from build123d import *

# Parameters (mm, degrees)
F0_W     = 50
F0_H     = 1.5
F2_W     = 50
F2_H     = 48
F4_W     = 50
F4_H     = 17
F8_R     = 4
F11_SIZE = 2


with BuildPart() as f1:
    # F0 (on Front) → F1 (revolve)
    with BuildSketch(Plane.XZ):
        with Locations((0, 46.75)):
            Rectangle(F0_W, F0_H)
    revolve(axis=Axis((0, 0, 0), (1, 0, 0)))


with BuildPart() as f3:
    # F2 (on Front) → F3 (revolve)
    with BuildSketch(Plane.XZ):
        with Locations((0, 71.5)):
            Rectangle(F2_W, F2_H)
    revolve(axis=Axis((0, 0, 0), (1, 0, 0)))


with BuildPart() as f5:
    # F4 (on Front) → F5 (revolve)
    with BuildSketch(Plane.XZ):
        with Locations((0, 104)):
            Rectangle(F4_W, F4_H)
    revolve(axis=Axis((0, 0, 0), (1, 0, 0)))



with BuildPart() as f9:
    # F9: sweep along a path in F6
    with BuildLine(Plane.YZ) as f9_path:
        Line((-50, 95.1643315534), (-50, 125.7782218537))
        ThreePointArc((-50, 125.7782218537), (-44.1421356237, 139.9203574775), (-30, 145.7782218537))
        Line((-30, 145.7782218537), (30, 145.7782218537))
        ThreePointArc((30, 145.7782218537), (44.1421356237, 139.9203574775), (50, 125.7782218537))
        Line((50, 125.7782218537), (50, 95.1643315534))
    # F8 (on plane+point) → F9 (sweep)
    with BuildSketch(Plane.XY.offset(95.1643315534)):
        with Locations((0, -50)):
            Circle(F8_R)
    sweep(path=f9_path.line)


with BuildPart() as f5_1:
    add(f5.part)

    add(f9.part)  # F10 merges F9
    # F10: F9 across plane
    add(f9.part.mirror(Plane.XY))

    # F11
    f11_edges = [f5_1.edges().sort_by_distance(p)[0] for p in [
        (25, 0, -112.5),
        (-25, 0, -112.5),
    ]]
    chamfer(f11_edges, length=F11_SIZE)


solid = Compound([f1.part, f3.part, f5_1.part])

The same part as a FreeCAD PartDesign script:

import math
import FreeCAD as App
import Part
import Sketcher
Q = App.Units.Quantity


def edges_at(feature, points):
    """Names of the edges that pass closest to the given points."""
    edges = feature.Shape.Edges
    near = lambda p: min(range(len(edges)), key=lambda i: edges[i].distToShape(Part.Vertex(*p))[0])
    return sorted({f"Edge{near(p) + 1}" for p in points})

doc = App.newDocument("Part")
params = doc.addObject("Spreadsheet::Sheet", "Params")
for row, (alias, value) in enumerate([
    ("sketch1_width", "50 mm"),
    ("sketch1_height", "1.5 mm"),
    ("revolution_angle", "360 deg"),
    ("sketch2_width", "50 mm"),
    ("sketch2_height", "48 mm"),
    ("revolution2_angle", "360 deg"),
    ("sketch3_width", "50 mm"),
    ("sketch3_height", "17 mm"),
    ("revolution3_angle", "360 deg"),
    ("sketch4_diameter", "8 mm"),
    ("sketch5_radius", "20 mm"),
    ("sketch5_width", "60 mm"),
    ("chamfer_size", "2 mm"),
], start=1):
    params.set(f"A{row}", alias)
    params.set(f"B{row}", "=" + value)
    params.setAlias(f"B{row}", alias)

body = doc.addObject("PartDesign::Body", "Body")

# Sketch on XZ plane
sketch1 = body.newObject("Sketcher::SketchObject", "Sketch")
sketch1.AttachmentSupport = (doc.getObject("XZ_Plane"), [""])
sketch1.MapMode = "FlatFace"
sketch1.addGeometry(Part.LineSegment(App.Vector(-25, 47.5, 0), App.Vector(-25, 46, 0)), False)
sketch1.addGeometry(Part.LineSegment(App.Vector(-25, 46, 0), App.Vector(25, 46, 0)), False)
sketch1.addGeometry(Part.LineSegment(App.Vector(25, 46, 0), App.Vector(25, 47.5, 0)), False)
sketch1.addGeometry(Part.LineSegment(App.Vector(25, 47.5, 0), App.Vector(-25, 47.5, 0)), False)
sketch1.addConstraint(Sketcher.Constraint("Coincident", 0, 2, 1, 1))
sketch1.addConstraint(Sketcher.Constraint("Coincident", 1, 2, 2, 1))
sketch1.addConstraint(Sketcher.Constraint("Coincident", 2, 2, 3, 1))
sketch1.addConstraint(Sketcher.Constraint("Coincident", 3, 2, 0, 1))
sketch1.addConstraint(Sketcher.Constraint("Vertical", 0))
sketch1.addConstraint(Sketcher.Constraint("Horizontal", 1))
sketch1.addConstraint(Sketcher.Constraint("Vertical", 2))
sketch1.addConstraint(Sketcher.Constraint("Horizontal", 3))
sketch1.addConstraint(Sketcher.Constraint("DistanceX", 1, 1, 1, 2, Q("50 mm")))
sketch1.addConstraint(Sketcher.Constraint("DistanceY", 0, 2, 0, 1, Q("1.5 mm")))
sketch1.addConstraint(Sketcher.Constraint("DistanceX", 0, 2, -1, 1, Q("25 mm")))
sketch1.addConstraint(Sketcher.Constraint("DistanceY", -1, 1, 0, 2, Q("46 mm")))
sketch1.setExpression("Constraints[8]", "Params.sketch1_width")
sketch1.setExpression("Constraints[9]", "Params.sketch1_height")
revolution = body.newObject("PartDesign::Revolution", "Revolution")
revolution.Profile = sketch1
revolution.ReferenceAxis = (sketch1, ["H_Axis"])
revolution.setExpression("Angle", "Params.revolution_angle")
body2 = doc.addObject("PartDesign::Body", "Body001")

# Sketch on XZ plane
sketch2 = body2.newObject("Sketcher::SketchObject", "Sketch001")
sketch2.AttachmentSupport = (doc.getObject("XZ_Plane001"), [""])
sketch2.MapMode = "FlatFace"
sketch2.addGeometry(Part.LineSegment(App.Vector(-25, 96, 0), App.Vector(-25, 48, 0)), False)
sketch2.addGeometry(Part.LineSegment(App.Vector(-25, 48, 0), App.Vector(25, 48, 0)), False)
sketch2.addGeometry(Part.LineSegment(App.Vector(25, 48, 0), App.Vector(25, 96, 0)), False)
sketch2.addGeometry(Part.LineSegment(App.Vector(25, 96, 0), App.Vector(-25, 96, 0)), False)
sketch2.addConstraint(Sketcher.Constraint("Coincident", 0, 2, 1, 1))
sketch2.addConstraint(Sketcher.Constraint("Coincident", 1, 2, 2, 1))
sketch2.addConstraint(Sketcher.Constraint("Coincident", 2, 2, 3, 1))
sketch2.addConstraint(Sketcher.Constraint("Coincident", 3, 2, 0, 1))
sketch2.addConstraint(Sketcher.Constraint("Vertical", 0))
sketch2.addConstraint(Sketcher.Constraint("Horizontal", 1))
sketch2.addConstraint(Sketcher.Constraint("Vertical", 2))
sketch2.addConstraint(Sketcher.Constraint("Horizontal", 3))
sketch2.addConstraint(Sketcher.Constraint("DistanceX", 1, 1, 1, 2, Q("50 mm")))
sketch2.addConstraint(Sketcher.Constraint("DistanceY", 0, 2, 0, 1, Q("48 mm")))
sketch2.addConstraint(Sketcher.Constraint("DistanceX", 0, 2, -1, 1, Q("25 mm")))
sketch2.addConstraint(Sketcher.Constraint("DistanceY", -1, 1, 0, 2, Q("47.5 mm")))
sketch2.setExpression("Constraints[8]", "Params.sketch2_width")
sketch2.setExpression("Constraints[9]", "Params.sketch2_height")
revolution2 = body2.newObject("PartDesign::Revolution", "Revolution001")
revolution2.Profile = sketch2
revolution2.ReferenceAxis = (sketch2, ["H_Axis"])
revolution2.setExpression("Angle", "Params.revolution2_angle")
body3 = doc.addObject("PartDesign::Body", "Body002")

# Sketch on XZ plane
sketch3 = body3.newObject("Sketcher::SketchObject", "Sketch002")
sketch3.AttachmentSupport = (doc.getObject("XZ_Plane002"), [""])
sketch3.MapMode = "FlatFace"
sketch3.addGeometry(Part.LineSegment(App.Vector(-25, 112, 0), App.Vector(-25, 96, 0)), False)
sketch3.addGeometry(Part.LineSegment(App.Vector(-25, 96, 0), App.Vector(25, 96, 0)), False)
sketch3.addGeometry(Part.LineSegment(App.Vector(25, 96, 0), App.Vector(25, 112, 0)), False)
sketch3.addGeometry(Part.LineSegment(App.Vector(25, 112, 0), App.Vector(-25, 112, 0)), False)
sketch3.addConstraint(Sketcher.Constraint("Coincident", 0, 2, 1, 1))
sketch3.addConstraint(Sketcher.Constraint("Coincident", 1, 2, 2, 1))
sketch3.addConstraint(Sketcher.Constraint("Coincident", 2, 2, 3, 1))
sketch3.addConstraint(Sketcher.Constraint("Coincident", 3, 2, 0, 1))
sketch3.addConstraint(Sketcher.Constraint("Vertical", 0))
sketch3.addConstraint(Sketcher.Constraint("Horizontal", 1))
sketch3.addConstraint(Sketcher.Constraint("Vertical", 2))
sketch3.addConstraint(Sketcher.Constraint("Horizontal", 3))
sketch3.addConstraint(Sketcher.Constraint("DistanceX", 1, 1, 1, 2, Q("50 mm")))
sketch3.addConstraint(Sketcher.Constraint("DistanceY", 0, 2, 0, 1, Q("17 mm")))
sketch3.addConstraint(Sketcher.Constraint("DistanceX", 0, 2, -1, 1, Q("25 mm")))
sketch3.addConstraint(Sketcher.Constraint("DistanceY", -1, 1, 0, 2, Q("95.5 mm")))
sketch3.setExpression("Constraints[8]", "Params.sketch3_width")
sketch3.setExpression("Constraints[9]", "Params.sketch3_height")
revolution3 = body3.newObject("PartDesign::Revolution", "Revolution002")
revolution3.Profile = sketch3
revolution3.ReferenceAxis = (sketch3, ["H_Axis"])
revolution3.setExpression("Angle", "Params.revolution3_angle")
body4 = doc.addObject("PartDesign::Body", "Body003")

# Sketch on XY plane
sketch4 = body4.newObject("Sketcher::SketchObject", "Sketch003")
sketch4.AttachmentSupport = (doc.getObject("XY_Plane003"), [""])
sketch4.MapMode = "FlatFace"
sketch4.AttachmentOffset = App.Placement(App.Vector(0, 0, 95.164332), App.Rotation())
sketch4.addGeometry(Part.Circle(App.Vector(0, -50, 0), App.Vector(0, 0, 1), 4), False)
sketch4.addConstraint(Sketcher.Constraint("PointOnObject", 0, 3, -2))
sketch4.addConstraint(Sketcher.Constraint("Diameter", 0, Q("8 mm")))
sketch4.addConstraint(Sketcher.Constraint("DistanceY", 0, 3, -1, 1, Q("50 mm")))
sketch4.setExpression("Constraints[1]", "Params.sketch4_diameter")

# Sketch on YZ plane
sketch5 = body4.newObject("Sketcher::SketchObject", "Sketch004")
sketch5.AttachmentSupport = (doc.getObject("YZ_Plane003"), [""])
sketch5.MapMode = "FlatFace"
sketch5.addGeometry(Part.LineSegment(App.Vector(-50, 95, 0), App.Vector(-50, 126, 0)), False)
sketch5.addGeometry(Part.ArcOfCircle(Part.Circle(App.Vector(-30, 126, 0), App.Vector(0, 0, 1), 20), math.radians(90), math.radians(180)), False)
sketch5.addGeometry(Part.LineSegment(App.Vector(-30, 146, 0), App.Vector(30, 146, 0)), False)
sketch5.addGeometry(Part.ArcOfCircle(Part.Circle(App.Vector(30, 126, 0), App.Vector(0, 0, 1), 20), math.radians(0), math.radians(90)), False)
sketch5.addGeometry(Part.LineSegment(App.Vector(50, 126, 0), App.Vector(50, 95, 0)), False)
sketch5.addConstraint(Sketcher.Constraint("Tangent", 0, 2, 1, 2))
sketch5.addConstraint(Sketcher.Constraint("Tangent", 1, 1, 2, 1))
sketch5.addConstraint(Sketcher.Constraint("Tangent", 2, 2, 3, 2))
sketch5.addConstraint(Sketcher.Constraint("Tangent", 3, 1, 4, 1))
sketch5.addConstraint(Sketcher.Constraint("Vertical", 0))
sketch5.addConstraint(Sketcher.Constraint("Horizontal", 2))
sketch5.addConstraint(Sketcher.Constraint("Vertical", 4))
sketch5.addConstraint(Sketcher.Constraint("Equal", 1, 3))
sketch5.addConstraint(Sketcher.Constraint("Symmetric", 0, 1, 4, 2, -2))
sketch5.addConstraint(Sketcher.Constraint("Radius", 1, Q("20 mm")))
sketch5.addConstraint(Sketcher.Constraint("DistanceX", 2, 1, 2, 2, Q("60 mm")))
sketch5.addConstraint(Sketcher.Constraint("DistanceY", 0, 1, 0, 2, Q("30.61389 mm")))
sketch5.addConstraint(Sketcher.Constraint("DistanceY", -1, 1, 1, 3, Q("125.778222 mm")))
sketch5.setExpression("Constraints[9]", "Params.sketch5_radius")
sketch5.setExpression("Constraints[10]", "Params.sketch5_width")
doc.recompute()

additivepipe = body4.newObject("PartDesign::AdditivePipe", "AdditivePipe")
additivepipe.Profile = sketch4
additivepipe.Spine = (sketch5, ["Edge1", "Edge2", "Edge3", "Edge4", "Edge5"])
doc.recompute()

body5 = doc.addObject("PartDesign::Body", "Body004")
body5.BaseFeature = body4
boolean = body3.newObject("PartDesign::Boolean", "Boolean")
boolean.Type = "Fuse"
boolean.addObjects([body5])
doc.recompute()

mirroring = doc.addObject("Part::Mirroring", "Mirroring")
mirroring.Source = body4
mirroring.Base = App.Vector(0, 0, 0)
mirroring.Normal = App.Vector(0, 0, 1)
body6 = doc.addObject("PartDesign::Body", "Body005")
body6.BaseFeature = mirroring
boolean2 = body3.newObject("PartDesign::Boolean", "Boolean001")
boolean2.Type = "Fuse"
boolean2.addObjects([body6])
doc.recompute()

chamfer = body3.newObject("PartDesign::Chamfer", "Chamfer")
chamfer.Base = (boolean2, edges_at(boolean2, [(25, 0, -112.5), (-25, 0, -112.5)]))
chamfer.setExpression("Size", "Params.chamfer_size")
mirroring.Visibility = False

doc.recompute()
